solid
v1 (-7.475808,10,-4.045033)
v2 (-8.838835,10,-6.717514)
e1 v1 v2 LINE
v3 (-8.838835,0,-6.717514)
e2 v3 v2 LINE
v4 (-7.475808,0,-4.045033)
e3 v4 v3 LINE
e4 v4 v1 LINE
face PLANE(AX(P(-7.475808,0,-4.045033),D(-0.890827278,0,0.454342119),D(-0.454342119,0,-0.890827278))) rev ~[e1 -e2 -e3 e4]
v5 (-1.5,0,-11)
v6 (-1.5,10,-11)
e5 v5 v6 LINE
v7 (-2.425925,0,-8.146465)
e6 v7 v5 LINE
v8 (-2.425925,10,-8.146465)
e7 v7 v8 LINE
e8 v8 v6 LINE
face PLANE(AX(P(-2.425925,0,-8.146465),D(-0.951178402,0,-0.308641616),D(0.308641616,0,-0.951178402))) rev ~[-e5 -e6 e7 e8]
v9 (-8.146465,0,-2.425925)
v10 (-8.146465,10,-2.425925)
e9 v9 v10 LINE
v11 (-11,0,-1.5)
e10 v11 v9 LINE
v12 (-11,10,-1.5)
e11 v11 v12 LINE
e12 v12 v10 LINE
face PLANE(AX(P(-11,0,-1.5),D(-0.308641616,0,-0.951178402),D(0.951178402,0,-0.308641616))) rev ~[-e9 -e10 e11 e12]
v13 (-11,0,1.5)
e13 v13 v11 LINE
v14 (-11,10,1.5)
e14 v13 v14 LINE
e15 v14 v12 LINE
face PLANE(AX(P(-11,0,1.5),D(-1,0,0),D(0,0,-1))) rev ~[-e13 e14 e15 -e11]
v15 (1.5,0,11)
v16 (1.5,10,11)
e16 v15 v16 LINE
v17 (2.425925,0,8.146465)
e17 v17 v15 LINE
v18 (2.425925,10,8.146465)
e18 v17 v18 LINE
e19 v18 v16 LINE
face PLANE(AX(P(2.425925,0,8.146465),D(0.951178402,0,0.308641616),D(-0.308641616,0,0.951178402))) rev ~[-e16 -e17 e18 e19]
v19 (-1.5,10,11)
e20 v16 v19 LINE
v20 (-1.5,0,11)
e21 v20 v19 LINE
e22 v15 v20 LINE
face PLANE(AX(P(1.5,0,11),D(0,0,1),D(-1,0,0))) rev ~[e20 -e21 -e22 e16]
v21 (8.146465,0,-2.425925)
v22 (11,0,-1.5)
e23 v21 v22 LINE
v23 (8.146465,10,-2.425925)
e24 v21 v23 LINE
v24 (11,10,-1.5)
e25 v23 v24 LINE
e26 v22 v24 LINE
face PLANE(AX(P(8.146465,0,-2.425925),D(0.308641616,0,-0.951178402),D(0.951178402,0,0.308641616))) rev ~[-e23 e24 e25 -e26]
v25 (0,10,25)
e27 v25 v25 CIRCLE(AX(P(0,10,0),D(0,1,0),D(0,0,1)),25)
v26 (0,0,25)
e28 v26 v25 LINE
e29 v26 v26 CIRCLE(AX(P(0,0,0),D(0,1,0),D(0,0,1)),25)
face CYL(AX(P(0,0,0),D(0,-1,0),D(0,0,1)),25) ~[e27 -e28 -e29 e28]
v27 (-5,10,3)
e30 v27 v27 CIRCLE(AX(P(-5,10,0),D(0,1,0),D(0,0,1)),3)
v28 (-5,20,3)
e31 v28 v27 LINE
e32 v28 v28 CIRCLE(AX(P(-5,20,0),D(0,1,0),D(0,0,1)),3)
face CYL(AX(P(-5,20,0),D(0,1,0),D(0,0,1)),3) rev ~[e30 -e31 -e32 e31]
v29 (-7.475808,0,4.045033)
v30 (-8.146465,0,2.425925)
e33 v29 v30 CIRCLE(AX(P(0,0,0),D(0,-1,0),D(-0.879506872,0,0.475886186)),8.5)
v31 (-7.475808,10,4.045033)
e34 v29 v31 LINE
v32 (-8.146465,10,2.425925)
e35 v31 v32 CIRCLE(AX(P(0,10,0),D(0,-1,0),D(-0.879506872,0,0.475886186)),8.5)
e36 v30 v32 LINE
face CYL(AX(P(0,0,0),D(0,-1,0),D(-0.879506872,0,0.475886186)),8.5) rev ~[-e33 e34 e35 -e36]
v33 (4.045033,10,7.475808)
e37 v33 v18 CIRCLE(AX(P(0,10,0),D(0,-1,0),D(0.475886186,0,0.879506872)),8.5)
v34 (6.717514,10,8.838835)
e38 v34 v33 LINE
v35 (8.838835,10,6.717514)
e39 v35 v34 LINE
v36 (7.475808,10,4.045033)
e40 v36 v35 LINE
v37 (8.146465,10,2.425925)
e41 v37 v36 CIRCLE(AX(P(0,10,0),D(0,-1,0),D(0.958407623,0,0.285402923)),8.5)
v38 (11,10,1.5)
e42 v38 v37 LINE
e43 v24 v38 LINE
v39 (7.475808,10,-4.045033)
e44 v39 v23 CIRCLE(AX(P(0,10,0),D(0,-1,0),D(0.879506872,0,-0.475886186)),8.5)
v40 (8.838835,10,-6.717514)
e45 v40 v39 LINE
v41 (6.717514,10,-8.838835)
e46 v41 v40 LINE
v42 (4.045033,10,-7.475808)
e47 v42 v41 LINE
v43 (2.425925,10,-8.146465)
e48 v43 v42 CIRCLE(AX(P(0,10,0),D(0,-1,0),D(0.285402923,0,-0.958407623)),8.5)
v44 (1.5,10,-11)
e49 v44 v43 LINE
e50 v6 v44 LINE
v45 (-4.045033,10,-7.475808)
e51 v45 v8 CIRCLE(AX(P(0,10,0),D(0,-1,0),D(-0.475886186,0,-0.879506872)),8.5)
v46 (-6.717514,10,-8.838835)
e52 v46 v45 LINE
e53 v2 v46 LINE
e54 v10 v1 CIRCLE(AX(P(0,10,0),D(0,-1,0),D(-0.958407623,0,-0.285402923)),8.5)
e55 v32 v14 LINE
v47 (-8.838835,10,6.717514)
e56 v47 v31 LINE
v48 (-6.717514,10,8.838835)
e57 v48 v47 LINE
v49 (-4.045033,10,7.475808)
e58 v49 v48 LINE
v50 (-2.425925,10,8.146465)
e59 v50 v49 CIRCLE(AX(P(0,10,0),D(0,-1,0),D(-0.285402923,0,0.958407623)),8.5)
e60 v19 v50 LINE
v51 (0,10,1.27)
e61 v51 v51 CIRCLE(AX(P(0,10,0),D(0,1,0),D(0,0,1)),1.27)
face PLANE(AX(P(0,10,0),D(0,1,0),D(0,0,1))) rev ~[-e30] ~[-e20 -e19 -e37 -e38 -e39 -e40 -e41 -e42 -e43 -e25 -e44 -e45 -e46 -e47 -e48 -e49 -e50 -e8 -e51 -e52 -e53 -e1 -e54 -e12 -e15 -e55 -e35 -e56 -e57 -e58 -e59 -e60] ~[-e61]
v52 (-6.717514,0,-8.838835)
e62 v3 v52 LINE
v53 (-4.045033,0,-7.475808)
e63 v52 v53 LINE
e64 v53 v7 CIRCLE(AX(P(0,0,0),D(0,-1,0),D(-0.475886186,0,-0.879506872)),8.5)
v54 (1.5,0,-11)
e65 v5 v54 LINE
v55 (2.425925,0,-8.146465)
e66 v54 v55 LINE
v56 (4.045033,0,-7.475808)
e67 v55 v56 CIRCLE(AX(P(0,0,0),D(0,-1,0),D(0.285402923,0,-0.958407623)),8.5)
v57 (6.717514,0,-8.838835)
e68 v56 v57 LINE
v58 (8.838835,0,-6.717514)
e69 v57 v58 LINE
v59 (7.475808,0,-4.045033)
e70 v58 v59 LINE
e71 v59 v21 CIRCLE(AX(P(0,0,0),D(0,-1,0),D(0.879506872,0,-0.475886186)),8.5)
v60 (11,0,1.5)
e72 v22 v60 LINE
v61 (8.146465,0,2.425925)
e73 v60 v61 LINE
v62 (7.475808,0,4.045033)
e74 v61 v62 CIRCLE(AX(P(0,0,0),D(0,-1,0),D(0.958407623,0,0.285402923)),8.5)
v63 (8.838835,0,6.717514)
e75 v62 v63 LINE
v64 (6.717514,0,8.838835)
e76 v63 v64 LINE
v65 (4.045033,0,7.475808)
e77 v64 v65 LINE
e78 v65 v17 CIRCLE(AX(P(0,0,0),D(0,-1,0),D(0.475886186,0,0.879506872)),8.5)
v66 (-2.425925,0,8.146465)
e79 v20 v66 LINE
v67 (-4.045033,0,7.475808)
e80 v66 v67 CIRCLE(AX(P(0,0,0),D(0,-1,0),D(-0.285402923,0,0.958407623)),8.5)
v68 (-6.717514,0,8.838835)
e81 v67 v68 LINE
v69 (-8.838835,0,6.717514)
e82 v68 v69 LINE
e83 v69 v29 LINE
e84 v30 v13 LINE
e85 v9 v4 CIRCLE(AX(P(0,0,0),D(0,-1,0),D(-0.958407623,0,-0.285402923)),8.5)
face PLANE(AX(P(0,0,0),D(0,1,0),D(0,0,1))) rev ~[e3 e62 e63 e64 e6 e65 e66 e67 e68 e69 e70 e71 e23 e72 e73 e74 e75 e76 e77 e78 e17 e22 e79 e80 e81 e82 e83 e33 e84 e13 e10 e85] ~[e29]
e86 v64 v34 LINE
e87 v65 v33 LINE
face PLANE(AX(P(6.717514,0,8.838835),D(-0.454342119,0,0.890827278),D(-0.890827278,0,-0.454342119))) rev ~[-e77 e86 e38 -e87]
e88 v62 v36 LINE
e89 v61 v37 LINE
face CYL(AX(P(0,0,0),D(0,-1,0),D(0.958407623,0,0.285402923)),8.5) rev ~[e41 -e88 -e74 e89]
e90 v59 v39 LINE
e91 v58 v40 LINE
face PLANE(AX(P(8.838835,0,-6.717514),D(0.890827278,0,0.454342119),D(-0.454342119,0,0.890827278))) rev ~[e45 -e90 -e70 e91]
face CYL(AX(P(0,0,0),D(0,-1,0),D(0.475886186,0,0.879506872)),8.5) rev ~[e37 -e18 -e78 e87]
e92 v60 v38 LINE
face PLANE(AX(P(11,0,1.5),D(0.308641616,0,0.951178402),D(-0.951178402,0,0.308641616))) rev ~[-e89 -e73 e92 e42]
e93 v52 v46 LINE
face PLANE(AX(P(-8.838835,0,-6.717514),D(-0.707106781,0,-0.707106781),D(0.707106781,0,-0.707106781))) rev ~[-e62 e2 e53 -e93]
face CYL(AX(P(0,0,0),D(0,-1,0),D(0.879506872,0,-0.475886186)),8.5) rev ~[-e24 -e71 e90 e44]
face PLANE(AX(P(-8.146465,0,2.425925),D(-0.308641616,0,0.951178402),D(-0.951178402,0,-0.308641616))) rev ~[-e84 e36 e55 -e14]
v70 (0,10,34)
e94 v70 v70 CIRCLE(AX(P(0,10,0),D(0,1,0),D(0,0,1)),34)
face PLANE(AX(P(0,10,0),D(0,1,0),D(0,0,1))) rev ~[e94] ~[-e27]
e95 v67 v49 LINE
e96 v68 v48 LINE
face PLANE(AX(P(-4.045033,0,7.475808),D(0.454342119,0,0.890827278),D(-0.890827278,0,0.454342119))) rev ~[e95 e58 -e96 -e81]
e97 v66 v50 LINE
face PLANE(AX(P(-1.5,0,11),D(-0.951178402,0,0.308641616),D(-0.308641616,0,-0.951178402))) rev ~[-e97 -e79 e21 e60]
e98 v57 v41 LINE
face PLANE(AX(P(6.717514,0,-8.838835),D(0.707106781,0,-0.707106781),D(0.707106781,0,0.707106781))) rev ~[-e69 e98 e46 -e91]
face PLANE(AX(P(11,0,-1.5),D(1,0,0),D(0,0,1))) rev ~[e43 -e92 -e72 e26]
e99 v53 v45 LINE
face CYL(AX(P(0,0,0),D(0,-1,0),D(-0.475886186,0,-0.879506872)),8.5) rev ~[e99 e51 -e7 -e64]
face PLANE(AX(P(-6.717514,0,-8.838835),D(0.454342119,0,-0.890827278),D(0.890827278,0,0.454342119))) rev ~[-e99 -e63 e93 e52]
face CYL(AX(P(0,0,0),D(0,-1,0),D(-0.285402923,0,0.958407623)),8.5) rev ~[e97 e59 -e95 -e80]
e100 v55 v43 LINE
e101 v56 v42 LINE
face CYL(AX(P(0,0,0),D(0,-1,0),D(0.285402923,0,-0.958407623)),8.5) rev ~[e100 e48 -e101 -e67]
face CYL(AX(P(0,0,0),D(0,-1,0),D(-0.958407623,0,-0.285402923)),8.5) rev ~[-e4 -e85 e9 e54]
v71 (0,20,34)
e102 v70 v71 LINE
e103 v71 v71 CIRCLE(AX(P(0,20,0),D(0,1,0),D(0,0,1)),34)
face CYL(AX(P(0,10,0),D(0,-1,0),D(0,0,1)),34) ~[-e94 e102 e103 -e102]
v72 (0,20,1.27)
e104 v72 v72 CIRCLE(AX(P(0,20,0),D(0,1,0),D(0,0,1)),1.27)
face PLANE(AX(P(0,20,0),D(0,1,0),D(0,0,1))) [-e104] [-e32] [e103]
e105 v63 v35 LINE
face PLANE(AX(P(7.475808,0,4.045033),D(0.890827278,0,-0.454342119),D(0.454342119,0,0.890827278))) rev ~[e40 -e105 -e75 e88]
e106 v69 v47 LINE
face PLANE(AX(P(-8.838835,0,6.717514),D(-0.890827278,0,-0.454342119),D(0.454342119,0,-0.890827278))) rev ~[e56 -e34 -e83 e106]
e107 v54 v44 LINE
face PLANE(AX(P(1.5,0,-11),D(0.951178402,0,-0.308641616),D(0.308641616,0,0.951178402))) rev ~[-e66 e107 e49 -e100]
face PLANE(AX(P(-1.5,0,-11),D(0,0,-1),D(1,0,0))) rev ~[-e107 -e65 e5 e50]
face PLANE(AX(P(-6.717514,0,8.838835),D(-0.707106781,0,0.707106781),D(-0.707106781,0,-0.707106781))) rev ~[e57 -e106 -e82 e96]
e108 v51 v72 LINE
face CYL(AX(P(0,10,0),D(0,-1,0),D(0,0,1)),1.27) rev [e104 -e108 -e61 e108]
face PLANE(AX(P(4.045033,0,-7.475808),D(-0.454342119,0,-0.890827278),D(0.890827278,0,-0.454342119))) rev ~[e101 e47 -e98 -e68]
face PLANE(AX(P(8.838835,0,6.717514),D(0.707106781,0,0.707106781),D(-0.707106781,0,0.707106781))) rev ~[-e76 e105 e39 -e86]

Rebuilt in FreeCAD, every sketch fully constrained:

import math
import FreeCAD as App
import Part
import Sketcher

V = App.Vector
Q = App.Units.Quantity

doc = App.newDocument("Part")
body = doc.addObject("PartDesign::Body", "Body")

# Sketch on XZ plane
sketch1 = doc.addObject("Sketcher::SketchObject", "Sketch")
body.addObject(sketch1)
sketch1.AttachmentSupport = (doc.XZ_Plane, [""])
sketch1.MapMode = "FlatFace"
sketch1.addGeometry([
    Part.Circle(V(0, 0, 0), V(0, 0, 1), 25),  # 0
    Part.LineSegment(V(-2.4, -8.1, 0), V(-1.5, -11, 0)),  # 1
    Part.LineSegment(V(-1.5, -11, 0), V(1.5, -11, 0)),  # 2
    Part.LineSegment(V(1.5, -11, 0), V(2.4, -8.1, 0)),  # 3
    Part.ArcOfCircle(Part.Circle(V(0, 0, 0), V(0, 0, 1), 8.5), math.radians(-73.42), math.radians(-61.58)),  # 4
    Part.LineSegment(V(4, -7.5, 0), V(6.7, -8.8, 0)),  # 5
    Part.LineSegment(V(6.7, -8.8, 0), V(8.8, -6.7, 0)),  # 6
    Part.LineSegment(V(8.8, -6.7, 0), V(7.5, -4, 0)),  # 7
    Part.ArcOfCircle(Part.Circle(V(0, 0, 0), V(0, 0, 1), 8.5), math.radians(-28.42), math.radians(-16.58)),  # 8
    Part.LineSegment(V(8.1, -2.4, 0), V(11, -1.5, 0)),  # 9
    Part.LineSegment(V(11, -1.5, 0), V(11, 1.5, 0)),  # 10
    Part.LineSegment(V(11, 1.5, 0), V(8.1, 2.4, 0)),  # 11
    Part.ArcOfCircle(Part.Circle(V(0, 0, 0), V(0, 0, 1), 8.5), math.radians(16.58), math.radians(28.42)),  # 12
    Part.LineSegment(V(7.5, 4, 0), V(8.8, 6.7, 0)),  # 13
    Part.LineSegment(V(8.8, 6.7, 0), V(6.7, 8.8, 0)),  # 14
    Part.LineSegment(V(6.7, 8.8, 0), V(4, 7.5, 0)),  # 15
    Part.ArcOfCircle(Part.Circle(V(0, 0, 0), V(0, 0, 1), 8.5), math.radians(61.58), math.radians(73.42)),  # 16
    Part.LineSegment(V(2.4, 8.1, 0), V(1.5, 11, 0)),  # 17
    Part.LineSegment(V(1.5, 11, 0), V(-1.5, 11, 0)),  # 18
    Part.LineSegment(V(-1.5, 11, 0), V(-2.4, 8.1, 0)),  # 19
    Part.ArcOfCircle(Part.Circle(V(0, 0, 0), V(0, 0, 1), 8.5), math.radians(106.58), math.radians(118.42)),  # 20
    Part.LineSegment(V(-4, 7.5, 0), V(-6.7, 8.8, 0)),  # 21
    Part.LineSegment(V(-6.7, 8.8, 0), V(-8.8, 6.7, 0)),  # 22
    Part.LineSegment(V(-8.8, 6.7, 0), V(-7.5, 4, 0)),  # 23
    Part.ArcOfCircle(Part.Circle(V(0, 0, 0), V(0, 0, 1), 8.5), math.radians(151.58), math.radians(163.42)),  # 24
    Part.LineSegment(V(-8.1, 2.4, 0), V(-11, 1.5, 0)),  # 25
    Part.LineSegment(V(-11, 1.5, 0), V(-11, -1.5, 0)),  # 26
    Part.LineSegment(V(-11, -1.5, 0), V(-8.1, -2.4, 0)),  # 27
    Part.ArcOfCircle(Part.Circle(V(0, 0, 0), V(0, 0, 1), 8.5), math.radians(-163.42), math.radians(-151.58)),  # 28
    Part.LineSegment(V(-7.5, -4, 0), V(-8.8, -6.7, 0)),  # 29
    Part.LineSegment(V(-8.8, -6.7, 0), V(-6.7, -8.8, 0)),  # 30
    Part.LineSegment(V(-6.7, -8.8, 0), V(-4, -7.5, 0)),  # 31
    Part.ArcOfCircle(Part.Circle(V(0, 0, 0), V(0, 0, 1), 8.5), math.radians(-118.42), math.radians(-106.58)),  # 32
], False)
sketch1.addConstraint([
    Sketcher.Constraint("Coincident", 1, 2, 2, 1),
    Sketcher.Constraint("Coincident", 2, 2, 3, 1),
    Sketcher.Constraint("Coincident", 3, 2, 4, 1),
    Sketcher.Constraint("Coincident", 4, 2, 5, 1),
    Sketcher.Constraint("Coincident", 5, 2, 6, 1),
    Sketcher.Constraint("Coincident", 6, 2, 7, 1),
    Sketcher.Constraint("Coincident", 7, 2, 8, 1),
    Sketcher.Constraint("Coincident", 8, 2, 9, 1),
    Sketcher.Constraint("Coincident", 9, 2, 10, 1),
    Sketcher.Constraint("Coincident", 10, 2, 11, 1),
    Sketcher.Constraint("Coincident", 11, 2, 12, 1),
    Sketcher.Constraint("Coincident", 12, 2, 13, 1),
    Sketcher.Constraint("Coincident", 13, 2, 14, 1),
    Sketcher.Constraint("Coincident", 14, 2, 15, 1),
    Sketcher.Constraint("Coincident", 15, 2, 16, 1),
    Sketcher.Constraint("Coincident", 16, 2, 17, 1),
    Sketcher.Constraint("Coincident", 17, 2, 18, 1),
    Sketcher.Constraint("Coincident", 18, 2, 19, 1),
    Sketcher.Constraint("Coincident", 19, 2, 20, 1),
    Sketcher.Constraint("Coincident", 20, 2, 21, 1),
    Sketcher.Constraint("Coincident", 21, 2, 22, 1),
    Sketcher.Constraint("Coincident", 22, 2, 23, 1),
    Sketcher.Constraint("Coincident", 23, 2, 24, 1),
    Sketcher.Constraint("Coincident", 24, 2, 25, 1),
    Sketcher.Constraint("Coincident", 25, 2, 26, 1),
    Sketcher.Constraint("Coincident", 26, 2, 27, 1),
    Sketcher.Constraint("Coincident", 27, 2, 28, 1),
    Sketcher.Constraint("Coincident", 28, 2, 29, 1),
    Sketcher.Constraint("Coincident", 29, 2, 30, 1),
    Sketcher.Constraint("Coincident", 30, 2, 31, 1),
    Sketcher.Constraint("Coincident", 31, 2, 32, 1),
    Sketcher.Constraint("Coincident", 32, 2, 1, 1),
    Sketcher.Constraint("Horizontal", 2),
    Sketcher.Constraint("Vertical", 10),
    Sketcher.Constraint("Horizontal", 18),
    Sketcher.Constraint("Vertical", 26),
    Sketcher.Constraint("Coincident", 0, 3, -1, 1),
    Sketcher.Constraint("Coincident", 4, 3, -1, 1),
    Sketcher.Constraint("Coincident", 8, 3, -1, 1),
    Sketcher.Constraint("Coincident", 12, 3, -1, 1),
    Sketcher.Constraint("Coincident", 16, 3, -1, 1),
    Sketcher.Constraint("Coincident", 20, 3, -1, 1),
    Sketcher.Constraint("Coincident", 24, 3, -1, 1),
    Sketcher.Constraint("Coincident", 28, 3, -1, 1),
    Sketcher.Constraint("Coincident", 32, 3, -1, 1),
    Sketcher.Constraint("Equal", 4, 8),
    Sketcher.Constraint("Equal", 8, 12),
    Sketcher.Constraint("Equal", 12, 16),
    Sketcher.Constraint("Equal", 16, 20),
    Sketcher.Constraint("Equal", 20, 24),
    Sketcher.Constraint("Equal", 24, 28),
    Sketcher.Constraint("Equal", 28, 32),
    Sketcher.Constraint("Symmetric", 1, 2, 17, 2, -1, 1),
    Sketcher.Constraint("Symmetric", 5, 2, 21, 2, -1, 1),
    Sketcher.Constraint("Symmetric", 6, 2, 22, 2, -1, 1),
    Sketcher.Constraint("Symmetric", 9, 2, 25, 2, -1, 1),
    Sketcher.Constraint("Symmetric", 13, 2, 29, 2, -1, 1),
    Sketcher.Constraint("Symmetric", 14, 2, 30, 2, -1, 1),
    Sketcher.Constraint("Symmetric", 14, 2, 21, 2, -2),
    Sketcher.Constraint("Symmetric", 13, 2, 22, 2, -2),
    Sketcher.Constraint("Perpendicular", 1, 9),
    Sketcher.Constraint("Perpendicular", 3, 11),
    Sketcher.Constraint("Perpendicular", 5, 13),
    Sketcher.Constraint("Perpendicular", 6, 14),
    Sketcher.Constraint("Perpendicular", 7, 15),
    Sketcher.Constraint("Perpendicular", 9, 17),
    Sketcher.Constraint("Perpendicular", 11, 19),
    Sketcher.Constraint("Perpendicular", 13, 21),
    Sketcher.Constraint("Perpendicular", 15, 23),
    Sketcher.Constraint("Perpendicular", 17, 25),
    Sketcher.Constraint("Perpendicular", 19, 27),
    Sketcher.Constraint("Perpendicular", 21, 29),
    Sketcher.Constraint("Perpendicular", 23, 31),
    Sketcher.Constraint("Horizontal", 16, 2, 19, 2),
    Sketcher.Constraint("Horizontal", 15, 2, 20, 2),
    Sketcher.Constraint("Horizontal", 11, 2, 24, 2),
    Sketcher.Constraint("Horizontal", 10, 2, 25, 2),
    Sketcher.Constraint("Horizontal", 9, 2, 26, 2),
    Sketcher.Constraint("Horizontal", 3, 2, 32, 2),
    Sketcher.Constraint("Equal", 18, 10),
    Sketcher.Constraint("Equal", 3, 5),
    Sketcher.Constraint("Equal", 5, 6),
    Sketcher.Constraint("Equal", 6, 7),
    Sketcher.Constraint("Equal", 7, 9),
    Sketcher.Constraint("Diameter", 0, Q("50 mm")),
    Sketcher.Constraint("Radius", 4, Q("8.5 mm")),
    Sketcher.Constraint("DistanceX", 2, 1, 2, 2, Q("3 mm")),
    Sketcher.Constraint("Distance", 1, Q("3 mm")),
    Sketcher.Constraint("DistanceY", 1, 2, -1, 1, Q("11 mm")),
    Sketcher.Constraint("DistanceY", 4, 2, -1, 1, Q("7.475808 mm")),
])
pad1 = doc.addObject("PartDesign::Pad", "Pad")
body.addObject(pad1)
pad1.Profile = sketch1
pad1.Length = 10
pad1.Reversed = True

# Sketch on XZ plane
sketch2 = doc.addObject("Sketcher::SketchObject", "Sketch001")
body.addObject(sketch2)
sketch2.AttachmentSupport = (doc.XZ_Plane, [""])
sketch2.MapMode = "FlatFace"
sketch2.AttachmentOffset = App.Placement(V(0, 0, -10), App.Rotation())
sketch2.addGeometry([
    Part.Circle(V(0, 0, 0), V(0, 0, 1), 34),
    Part.Circle(V(0, 0, 0), V(0, 0, 1), 1.3),
], False)
sketch2.addConstraint([
    Sketcher.Constraint("Coincident", 0, 3, -1, 1),
    Sketcher.Constraint("Coincident", 1, 3, -1, 1),
    Sketcher.Constraint("Diameter", 0, Q("68 mm")),
    Sketcher.Constraint("Diameter", 1, Q("2.54 mm")),
])
pad2 = doc.addObject("PartDesign::Pad", "Pad001")
body.addObject(pad2)
pad2.Profile = sketch2
pad2.Length = 10
pad2.Reversed = True

# Sketch on XZ plane
sketch3 = doc.addObject("Sketcher::SketchObject", "Sketch002")
body.addObject(sketch3)
sketch3.AttachmentSupport = (doc.XZ_Plane, [""])
sketch3.MapMode = "FlatFace"
sketch3.AttachmentOffset = App.Placement(V(0, 0, -20), App.Rotation())
sketch3.addGeometry(Part.Circle(V(-5, 0, 0), V(0, 0, 1), 3), False)
sketch3.addConstraint([
    Sketcher.Constraint("PointOnObject", 0, 3, -1),
    Sketcher.Constraint("Diameter", 0, Q("6 mm")),
    Sketcher.Constraint("DistanceX", 0, 3, -1, 1, Q("5 mm")),
])
pocket1 = doc.addObject("PartDesign::Pocket", "Pocket")
body.addObject(pocket1)
pocket1.Profile = sketch3
pocket1.Type = "ThroughAll"
pocket1.Reversed = True

doc.recompute()
